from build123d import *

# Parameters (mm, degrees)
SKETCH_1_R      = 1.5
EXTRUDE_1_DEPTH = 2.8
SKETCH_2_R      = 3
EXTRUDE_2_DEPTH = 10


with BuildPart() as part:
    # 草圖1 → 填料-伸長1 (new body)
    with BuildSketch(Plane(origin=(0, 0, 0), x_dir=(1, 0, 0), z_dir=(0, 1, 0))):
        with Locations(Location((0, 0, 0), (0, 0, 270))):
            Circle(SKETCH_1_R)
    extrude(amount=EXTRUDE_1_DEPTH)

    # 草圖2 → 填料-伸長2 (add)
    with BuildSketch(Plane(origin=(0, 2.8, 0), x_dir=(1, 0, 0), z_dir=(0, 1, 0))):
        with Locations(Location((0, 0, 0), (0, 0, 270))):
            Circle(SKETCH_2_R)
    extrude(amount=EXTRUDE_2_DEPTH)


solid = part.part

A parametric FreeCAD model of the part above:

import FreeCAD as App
import Part
import Sketcher
from FreeCAD import Vector
Q = App.Units.Quantity

doc = App.newDocument("Part")
body = doc.addObject("PartDesign::Body", "Body")

# Sketch on XZ plane
sketch1 = doc.addObject("Sketcher::SketchObject", "Sketch")
body.addObject(sketch1)
sketch1.AttachmentSupport = (doc.XZ_Plane, [""])
sketch1.MapMode = "FlatFace"
sketch1.addGeometry(Part.Circle(Vector(0, 0, 0), Vector(0, 0, 1), 1.5), False)
sketch1.addConstraint([
    Sketcher.Constraint("Coincident", 0, 3, -1, 1),
    Sketcher.Constraint("Diameter", 0, Q("3 mm")),
])
pad1 = doc.addObject("PartDesign::Pad", "Pad")
body.addObject(pad1)
pad1.Profile = sketch1
pad1.Length = 2.8
pad1.Reversed = True

# Sketch on XZ plane
sketch2 = doc.addObject("Sketcher::SketchObject", "Sketch001")
body.addObject(sketch2)
sketch2.AttachmentSupport = (doc.XZ_Plane, [""])
sketch2.MapMode = "FlatFace"
sketch2.AttachmentOffset = App.Placement(Vector(0, 0, -2.8), App.Rotation())
sketch2.addGeometry(Part.Circle(Vector(0, 0, 0), Vector(0, 0, 1), 3), False)
sketch2.addConstraint([
    Sketcher.Constraint("Coincident", 0, 3, -1, 1),
    Sketcher.Constraint("Diameter", 0, Q("6 mm")),
])
pad2 = doc.addObject("PartDesign::Pad", "Pad001")
body.addObject(pad2)
pad2.Profile = sketch2
pad2.Length = 10
pad2.Reversed = True

doc.recompute()
